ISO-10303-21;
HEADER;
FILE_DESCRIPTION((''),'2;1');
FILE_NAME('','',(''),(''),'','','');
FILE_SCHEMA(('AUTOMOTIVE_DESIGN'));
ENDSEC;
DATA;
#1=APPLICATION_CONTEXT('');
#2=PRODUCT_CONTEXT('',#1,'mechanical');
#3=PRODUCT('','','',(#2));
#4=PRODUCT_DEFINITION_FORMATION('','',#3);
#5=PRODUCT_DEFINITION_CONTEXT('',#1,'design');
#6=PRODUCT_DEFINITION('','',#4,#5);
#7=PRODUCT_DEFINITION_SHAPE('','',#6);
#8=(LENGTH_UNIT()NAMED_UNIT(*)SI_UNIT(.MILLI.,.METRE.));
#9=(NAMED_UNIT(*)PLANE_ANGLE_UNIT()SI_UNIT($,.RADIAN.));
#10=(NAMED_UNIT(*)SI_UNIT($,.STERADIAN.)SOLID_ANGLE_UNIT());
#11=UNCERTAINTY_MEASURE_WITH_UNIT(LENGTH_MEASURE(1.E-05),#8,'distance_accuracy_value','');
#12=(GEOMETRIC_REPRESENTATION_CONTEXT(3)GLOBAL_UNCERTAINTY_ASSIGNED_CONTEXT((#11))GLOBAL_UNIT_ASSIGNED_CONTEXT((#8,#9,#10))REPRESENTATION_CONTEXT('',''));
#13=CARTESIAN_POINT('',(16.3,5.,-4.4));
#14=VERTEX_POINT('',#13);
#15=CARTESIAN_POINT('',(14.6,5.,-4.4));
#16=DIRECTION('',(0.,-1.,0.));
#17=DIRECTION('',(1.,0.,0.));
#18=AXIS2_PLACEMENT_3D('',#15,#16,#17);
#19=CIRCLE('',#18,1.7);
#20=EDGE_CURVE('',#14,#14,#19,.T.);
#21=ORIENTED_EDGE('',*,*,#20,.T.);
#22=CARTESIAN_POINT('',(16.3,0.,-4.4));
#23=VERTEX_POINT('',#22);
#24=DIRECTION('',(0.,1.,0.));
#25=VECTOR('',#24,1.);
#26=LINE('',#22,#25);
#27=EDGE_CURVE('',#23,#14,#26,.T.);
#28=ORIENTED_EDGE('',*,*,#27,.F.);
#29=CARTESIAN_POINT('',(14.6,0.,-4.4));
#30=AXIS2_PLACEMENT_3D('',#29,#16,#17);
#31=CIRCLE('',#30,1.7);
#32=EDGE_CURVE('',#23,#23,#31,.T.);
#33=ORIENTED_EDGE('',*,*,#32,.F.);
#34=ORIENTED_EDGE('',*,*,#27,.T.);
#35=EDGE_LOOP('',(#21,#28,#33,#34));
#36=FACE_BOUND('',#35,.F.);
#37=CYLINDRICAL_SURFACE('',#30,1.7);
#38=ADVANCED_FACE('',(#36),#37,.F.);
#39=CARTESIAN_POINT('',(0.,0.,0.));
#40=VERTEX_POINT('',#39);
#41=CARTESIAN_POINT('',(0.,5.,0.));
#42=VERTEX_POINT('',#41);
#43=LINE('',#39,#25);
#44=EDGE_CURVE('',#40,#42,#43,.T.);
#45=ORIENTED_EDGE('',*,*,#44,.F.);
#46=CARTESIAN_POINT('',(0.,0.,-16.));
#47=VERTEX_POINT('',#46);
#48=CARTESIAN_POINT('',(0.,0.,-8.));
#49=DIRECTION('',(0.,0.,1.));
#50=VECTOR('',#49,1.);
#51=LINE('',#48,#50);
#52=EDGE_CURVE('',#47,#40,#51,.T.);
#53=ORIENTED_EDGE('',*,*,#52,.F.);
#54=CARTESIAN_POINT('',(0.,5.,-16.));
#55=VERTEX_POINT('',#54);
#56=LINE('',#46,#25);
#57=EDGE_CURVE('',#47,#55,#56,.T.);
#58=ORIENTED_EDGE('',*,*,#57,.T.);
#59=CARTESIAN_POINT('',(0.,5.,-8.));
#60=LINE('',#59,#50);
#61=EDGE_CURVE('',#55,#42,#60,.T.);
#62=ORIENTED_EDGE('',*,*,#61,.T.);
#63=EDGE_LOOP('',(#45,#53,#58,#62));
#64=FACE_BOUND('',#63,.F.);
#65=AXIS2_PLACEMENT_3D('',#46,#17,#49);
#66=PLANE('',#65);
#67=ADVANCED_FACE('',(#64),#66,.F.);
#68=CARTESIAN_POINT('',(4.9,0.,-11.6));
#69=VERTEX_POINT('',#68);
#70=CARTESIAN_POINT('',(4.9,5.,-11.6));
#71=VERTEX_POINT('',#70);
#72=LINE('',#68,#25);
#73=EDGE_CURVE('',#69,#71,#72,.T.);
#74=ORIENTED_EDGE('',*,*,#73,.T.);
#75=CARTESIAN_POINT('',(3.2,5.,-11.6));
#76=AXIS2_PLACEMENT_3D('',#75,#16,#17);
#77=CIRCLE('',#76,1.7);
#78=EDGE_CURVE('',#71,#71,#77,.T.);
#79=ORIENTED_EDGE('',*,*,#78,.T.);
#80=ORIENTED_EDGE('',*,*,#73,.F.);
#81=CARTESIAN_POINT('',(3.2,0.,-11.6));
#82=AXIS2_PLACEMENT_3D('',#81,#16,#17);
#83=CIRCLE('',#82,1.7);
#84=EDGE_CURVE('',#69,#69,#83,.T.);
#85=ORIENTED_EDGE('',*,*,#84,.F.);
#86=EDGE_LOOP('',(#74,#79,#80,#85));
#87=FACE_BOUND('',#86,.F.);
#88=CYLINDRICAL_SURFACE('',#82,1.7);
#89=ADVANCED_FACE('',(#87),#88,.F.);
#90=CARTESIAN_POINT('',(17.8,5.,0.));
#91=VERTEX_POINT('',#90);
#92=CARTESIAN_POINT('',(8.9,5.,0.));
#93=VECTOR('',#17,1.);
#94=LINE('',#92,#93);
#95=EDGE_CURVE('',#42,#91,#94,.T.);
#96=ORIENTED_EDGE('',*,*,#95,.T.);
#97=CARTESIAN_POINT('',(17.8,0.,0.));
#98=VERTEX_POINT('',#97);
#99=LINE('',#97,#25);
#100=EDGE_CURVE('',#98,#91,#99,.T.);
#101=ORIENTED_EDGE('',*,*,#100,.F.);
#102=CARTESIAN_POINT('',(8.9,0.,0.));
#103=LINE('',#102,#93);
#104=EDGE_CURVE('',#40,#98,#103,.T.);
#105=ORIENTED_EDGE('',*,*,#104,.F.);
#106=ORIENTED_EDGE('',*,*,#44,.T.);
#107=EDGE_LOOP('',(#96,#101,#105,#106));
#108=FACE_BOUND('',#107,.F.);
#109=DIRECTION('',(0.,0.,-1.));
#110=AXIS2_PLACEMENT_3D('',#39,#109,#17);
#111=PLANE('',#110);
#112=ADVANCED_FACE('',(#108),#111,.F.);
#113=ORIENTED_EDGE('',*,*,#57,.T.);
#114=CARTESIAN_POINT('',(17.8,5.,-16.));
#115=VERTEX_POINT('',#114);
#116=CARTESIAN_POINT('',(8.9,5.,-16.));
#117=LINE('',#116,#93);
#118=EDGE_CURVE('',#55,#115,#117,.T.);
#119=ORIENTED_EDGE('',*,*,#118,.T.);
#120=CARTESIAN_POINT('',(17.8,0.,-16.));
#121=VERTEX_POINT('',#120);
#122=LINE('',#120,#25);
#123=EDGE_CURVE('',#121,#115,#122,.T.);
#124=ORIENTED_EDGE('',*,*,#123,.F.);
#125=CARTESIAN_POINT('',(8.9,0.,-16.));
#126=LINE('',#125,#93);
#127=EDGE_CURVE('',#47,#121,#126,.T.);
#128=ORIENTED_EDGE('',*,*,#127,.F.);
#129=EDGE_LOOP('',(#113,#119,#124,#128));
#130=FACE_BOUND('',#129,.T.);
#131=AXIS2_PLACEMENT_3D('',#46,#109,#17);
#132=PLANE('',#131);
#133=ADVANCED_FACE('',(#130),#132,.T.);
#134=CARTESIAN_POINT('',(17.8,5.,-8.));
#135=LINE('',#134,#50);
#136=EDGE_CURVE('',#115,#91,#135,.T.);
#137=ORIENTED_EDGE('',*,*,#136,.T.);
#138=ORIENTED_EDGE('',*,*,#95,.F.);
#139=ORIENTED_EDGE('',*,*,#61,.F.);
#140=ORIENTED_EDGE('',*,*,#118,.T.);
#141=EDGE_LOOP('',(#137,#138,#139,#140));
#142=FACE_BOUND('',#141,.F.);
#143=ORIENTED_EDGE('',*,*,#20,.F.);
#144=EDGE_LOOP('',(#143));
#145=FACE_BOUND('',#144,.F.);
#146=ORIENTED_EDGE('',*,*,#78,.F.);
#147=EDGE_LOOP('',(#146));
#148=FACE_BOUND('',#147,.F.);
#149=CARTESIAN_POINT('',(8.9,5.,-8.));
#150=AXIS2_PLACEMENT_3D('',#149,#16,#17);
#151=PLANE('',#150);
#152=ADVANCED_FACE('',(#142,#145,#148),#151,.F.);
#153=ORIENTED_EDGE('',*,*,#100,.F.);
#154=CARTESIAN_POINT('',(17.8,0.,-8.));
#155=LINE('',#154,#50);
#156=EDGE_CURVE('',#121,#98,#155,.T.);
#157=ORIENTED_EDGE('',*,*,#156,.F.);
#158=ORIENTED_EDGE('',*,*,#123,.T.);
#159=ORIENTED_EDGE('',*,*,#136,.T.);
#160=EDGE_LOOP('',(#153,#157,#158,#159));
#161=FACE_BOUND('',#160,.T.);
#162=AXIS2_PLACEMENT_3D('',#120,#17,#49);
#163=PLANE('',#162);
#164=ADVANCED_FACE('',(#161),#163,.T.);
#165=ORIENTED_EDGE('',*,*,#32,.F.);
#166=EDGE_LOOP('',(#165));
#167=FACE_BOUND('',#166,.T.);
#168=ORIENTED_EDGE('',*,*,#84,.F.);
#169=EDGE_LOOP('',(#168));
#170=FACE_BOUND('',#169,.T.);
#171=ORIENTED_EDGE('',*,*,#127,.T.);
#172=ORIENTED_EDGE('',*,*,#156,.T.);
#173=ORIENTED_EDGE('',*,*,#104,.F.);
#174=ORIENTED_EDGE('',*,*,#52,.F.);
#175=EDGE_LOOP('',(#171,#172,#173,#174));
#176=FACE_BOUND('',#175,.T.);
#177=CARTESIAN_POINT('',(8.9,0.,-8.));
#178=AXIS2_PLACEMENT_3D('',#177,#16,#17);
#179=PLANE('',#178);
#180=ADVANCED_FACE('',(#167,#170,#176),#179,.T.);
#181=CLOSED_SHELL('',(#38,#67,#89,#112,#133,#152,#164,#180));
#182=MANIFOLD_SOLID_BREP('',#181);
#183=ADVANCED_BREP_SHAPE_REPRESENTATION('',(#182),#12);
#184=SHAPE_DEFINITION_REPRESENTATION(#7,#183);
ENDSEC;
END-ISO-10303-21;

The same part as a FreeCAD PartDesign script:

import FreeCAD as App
import Part
import Sketcher
from FreeCAD import Vector


def add_polygon(sketch, points):
    """Adds a closed chain of lines whose ends are joined by coincident constraints."""
    first, n = sketch.GeometryCount, len(points)
    for a, b in zip(points, points[1:] + points[:1]):
        sketch.addGeometry(Part.LineSegment(App.Vector(*a, 0), App.Vector(*b, 0)), False)
    for i in range(n):
        sketch.addConstraint(Sketcher.Constraint("Coincident", first + i, 2, first + (i + 1) % n, 1))

doc = App.newDocument("Part")
body = doc.addObject("PartDesign::Body", "Body")

# Sketch on XZ plane
sketch1 = body.newObject("Sketcher::SketchObject", "Sketch")
sketch1.AttachmentSupport = (doc.getObject("XZ_Plane"), [""])
sketch1.MapMode = "FlatFace"
add_polygon(sketch1, [(0, 0), (0, -16), (17.8, -16), (17.8, 0)])  # lines 0-3
sketch1.addConstraint([
    Sketcher.Constraint("Vertical", 0),
    Sketcher.Constraint("Horizontal", 1),
    Sketcher.Constraint("Vertical", 2),
    Sketcher.Constraint("Horizontal", 3),
    Sketcher.Constraint("Coincident", 3, 2, -1, 1),
    Sketcher.Constraint("DistanceY", 0, 2, 0, 1, 16.0),
    Sketcher.Constraint("DistanceX", 1, 1, 1, 2, 17.8),
])
pad1 = body.newObject("PartDesign::Pad", "Pad")
pad1.Profile = sketch1
pad1.Length = 5
pad1.Reversed = True

# Sketch on XZ plane
sketch2 = body.newObject("Sketcher::SketchObject", "Sketch001")
sketch2.AttachmentSupport = (doc.getObject("XZ_Plane"), [""])
sketch2.MapMode = "FlatFace"
sketch2.addGeometry([
    Part.Circle(Vector(3.2, -11.6, 0), Vector(0, 0, 1), 1.7),
    Part.Circle(Vector(14.6, -4.4, 0), Vector(0, 0, 1), 1.7),
], False)
sketch2.addConstraint([
    Sketcher.Constraint("Equal", 0, 1),
    Sketcher.Constraint("Diameter", 0, 3.4),
    Sketcher.Constraint("DistanceX", -1, 1, 0, 3, 3.2),
    Sketcher.Constraint("DistanceY", 0, 3, -1, 1, 11.6),
    Sketcher.Constraint("DistanceX", -1, 1, 1, 3, 14.6),
    Sketcher.Constraint("DistanceY", 1, 3, -1, 1, 4.4),
])
pocket1 = body.newObject("PartDesign::Pocket", "Pocket")
pocket1.Profile = sketch2
pocket1.Type = "ThroughAll"

doc.recompute()
